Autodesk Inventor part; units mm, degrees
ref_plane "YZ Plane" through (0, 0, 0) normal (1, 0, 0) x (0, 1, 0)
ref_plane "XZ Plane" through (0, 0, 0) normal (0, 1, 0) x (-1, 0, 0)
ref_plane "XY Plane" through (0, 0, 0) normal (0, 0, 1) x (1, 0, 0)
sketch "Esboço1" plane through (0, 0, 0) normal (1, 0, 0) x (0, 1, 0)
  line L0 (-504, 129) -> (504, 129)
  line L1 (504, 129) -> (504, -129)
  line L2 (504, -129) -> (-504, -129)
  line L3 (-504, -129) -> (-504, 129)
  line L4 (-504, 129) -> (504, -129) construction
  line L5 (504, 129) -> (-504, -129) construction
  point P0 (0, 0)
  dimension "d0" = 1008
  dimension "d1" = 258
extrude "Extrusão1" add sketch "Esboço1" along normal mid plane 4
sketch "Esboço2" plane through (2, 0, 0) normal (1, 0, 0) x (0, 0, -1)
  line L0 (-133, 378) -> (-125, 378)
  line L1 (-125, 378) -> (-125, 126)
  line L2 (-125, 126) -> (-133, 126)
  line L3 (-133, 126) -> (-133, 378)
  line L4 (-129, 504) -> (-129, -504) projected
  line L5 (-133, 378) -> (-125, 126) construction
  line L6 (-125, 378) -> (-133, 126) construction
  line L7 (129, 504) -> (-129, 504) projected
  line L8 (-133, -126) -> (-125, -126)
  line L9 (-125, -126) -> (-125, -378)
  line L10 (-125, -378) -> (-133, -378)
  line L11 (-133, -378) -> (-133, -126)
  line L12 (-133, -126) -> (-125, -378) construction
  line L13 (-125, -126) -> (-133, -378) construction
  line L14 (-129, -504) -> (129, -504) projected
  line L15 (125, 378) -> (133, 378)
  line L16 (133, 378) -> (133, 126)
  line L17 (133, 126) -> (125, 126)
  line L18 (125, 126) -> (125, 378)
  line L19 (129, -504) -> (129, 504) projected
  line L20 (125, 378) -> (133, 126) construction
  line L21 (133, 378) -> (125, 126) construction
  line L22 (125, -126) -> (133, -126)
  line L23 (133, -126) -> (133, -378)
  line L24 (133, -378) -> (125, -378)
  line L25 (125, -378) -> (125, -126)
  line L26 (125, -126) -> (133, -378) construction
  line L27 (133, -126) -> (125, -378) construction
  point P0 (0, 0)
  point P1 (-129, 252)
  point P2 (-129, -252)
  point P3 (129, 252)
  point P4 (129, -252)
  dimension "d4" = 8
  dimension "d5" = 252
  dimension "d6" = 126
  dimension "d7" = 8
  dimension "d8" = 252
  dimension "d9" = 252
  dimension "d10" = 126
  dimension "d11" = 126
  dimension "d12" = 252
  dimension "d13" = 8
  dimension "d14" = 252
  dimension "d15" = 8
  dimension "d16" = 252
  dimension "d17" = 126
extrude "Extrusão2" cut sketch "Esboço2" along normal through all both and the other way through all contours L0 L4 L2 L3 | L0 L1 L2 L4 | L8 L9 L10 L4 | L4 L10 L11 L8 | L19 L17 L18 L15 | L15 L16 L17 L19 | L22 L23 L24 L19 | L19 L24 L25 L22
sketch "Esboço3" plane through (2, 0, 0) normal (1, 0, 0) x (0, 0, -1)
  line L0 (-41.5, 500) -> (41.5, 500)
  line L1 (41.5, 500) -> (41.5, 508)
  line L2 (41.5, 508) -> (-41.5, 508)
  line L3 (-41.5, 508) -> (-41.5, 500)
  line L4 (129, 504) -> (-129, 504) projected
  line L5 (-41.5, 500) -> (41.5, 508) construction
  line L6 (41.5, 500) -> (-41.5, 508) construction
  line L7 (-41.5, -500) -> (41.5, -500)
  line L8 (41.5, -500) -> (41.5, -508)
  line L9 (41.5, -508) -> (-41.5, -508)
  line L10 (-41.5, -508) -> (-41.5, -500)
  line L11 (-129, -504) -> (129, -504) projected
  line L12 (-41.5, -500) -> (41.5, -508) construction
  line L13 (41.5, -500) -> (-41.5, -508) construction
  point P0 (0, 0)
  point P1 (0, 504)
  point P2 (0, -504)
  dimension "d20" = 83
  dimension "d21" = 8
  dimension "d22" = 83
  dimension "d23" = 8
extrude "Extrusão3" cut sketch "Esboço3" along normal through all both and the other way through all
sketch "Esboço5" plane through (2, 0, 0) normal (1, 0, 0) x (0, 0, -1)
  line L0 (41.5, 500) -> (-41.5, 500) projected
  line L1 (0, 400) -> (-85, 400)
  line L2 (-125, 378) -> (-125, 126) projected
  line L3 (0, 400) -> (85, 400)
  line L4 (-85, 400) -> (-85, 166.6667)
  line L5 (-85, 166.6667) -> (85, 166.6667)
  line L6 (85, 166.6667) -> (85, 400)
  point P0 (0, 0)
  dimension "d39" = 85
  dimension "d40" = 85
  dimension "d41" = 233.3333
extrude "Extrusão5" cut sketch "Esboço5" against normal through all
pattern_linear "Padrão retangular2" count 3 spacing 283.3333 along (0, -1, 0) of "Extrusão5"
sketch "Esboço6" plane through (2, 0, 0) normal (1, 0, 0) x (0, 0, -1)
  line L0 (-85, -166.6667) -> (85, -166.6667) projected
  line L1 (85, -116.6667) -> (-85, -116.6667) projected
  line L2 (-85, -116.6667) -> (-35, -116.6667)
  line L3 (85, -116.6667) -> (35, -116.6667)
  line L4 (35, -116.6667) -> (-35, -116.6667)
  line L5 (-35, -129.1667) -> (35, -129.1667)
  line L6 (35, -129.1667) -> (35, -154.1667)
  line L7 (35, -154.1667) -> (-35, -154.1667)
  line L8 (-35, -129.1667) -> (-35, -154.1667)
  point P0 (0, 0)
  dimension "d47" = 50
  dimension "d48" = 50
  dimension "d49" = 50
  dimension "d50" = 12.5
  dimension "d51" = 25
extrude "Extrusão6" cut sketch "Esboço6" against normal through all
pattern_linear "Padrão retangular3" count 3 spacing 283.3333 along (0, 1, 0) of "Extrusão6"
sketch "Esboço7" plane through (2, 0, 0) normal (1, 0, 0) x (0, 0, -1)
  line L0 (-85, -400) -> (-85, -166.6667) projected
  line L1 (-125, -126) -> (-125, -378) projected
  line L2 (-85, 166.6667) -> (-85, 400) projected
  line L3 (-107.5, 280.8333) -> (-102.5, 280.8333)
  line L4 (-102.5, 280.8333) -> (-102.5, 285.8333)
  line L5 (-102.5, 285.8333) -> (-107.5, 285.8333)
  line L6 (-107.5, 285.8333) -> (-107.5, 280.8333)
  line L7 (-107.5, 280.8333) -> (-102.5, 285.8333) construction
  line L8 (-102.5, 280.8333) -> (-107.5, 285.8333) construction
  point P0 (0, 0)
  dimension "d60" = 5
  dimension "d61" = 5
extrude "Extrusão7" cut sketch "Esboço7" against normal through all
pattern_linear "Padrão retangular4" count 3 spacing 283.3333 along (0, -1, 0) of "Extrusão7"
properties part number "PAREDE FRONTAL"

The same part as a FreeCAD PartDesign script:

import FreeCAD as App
import Part
import Sketcher

V = App.Vector
Q = App.Units.Quantity


def add_polygon(sketch, points):
    """Adds a closed chain of lines whose ends are joined by coincident constraints."""
    first, n = sketch.GeometryCount, len(points)
    for a, b in zip(points, points[1:] + points[:1]):
        sketch.addGeometry(Part.LineSegment(App.Vector(*a, 0), App.Vector(*b, 0)), False)
    for i in range(n):
        sketch.addConstraint(Sketcher.Constraint("Coincident", first + i, 2, first + (i + 1) % n, 1))

doc = App.newDocument("Part")
body = doc.addObject("PartDesign::Body", "Body")

# Sketch on YZ plane
sketch1 = body.newObject("Sketcher::SketchObject", "Sketch")
sketch1.AttachmentSupport = (doc.getObject("YZ_Plane"), [""])
sketch1.MapMode = "FlatFace"
add_polygon(sketch1, [(504, 129), (-504, 129), (-504, -129), (504, -129)])  # lines 0-3
sketch1.addConstraint(Sketcher.Constraint("Horizontal", 0))
sketch1.addConstraint(Sketcher.Constraint("Vertical", 1))
sketch1.addConstraint(Sketcher.Constraint("Horizontal", 2))
sketch1.addConstraint(Sketcher.Constraint("Vertical", 3))
sketch1.addConstraint(Sketcher.Constraint("Symmetric", 0, 2, 2, 2, -1, 1))
sketch1.addConstraint(Sketcher.Constraint("DistanceX", 0, 2, 0, 1, Q("1008 mm")))
sketch1.addConstraint(Sketcher.Constraint("DistanceY", 1, 2, 1, 1, Q("258 mm")))
pad1 = body.newObject("PartDesign::Pad", "Pad")
pad1.Profile = sketch1
pad1.Length = 4
pad1.Midplane = True

# Sketch on YZ plane
sketch2 = body.newObject("Sketcher::SketchObject", "Sketch001")
sketch2.AttachmentSupport = (doc.getObject("YZ_Plane"), [""])
sketch2.MapMode = "FlatFace"
sketch2.AttachmentOffset = App.Placement(V(0, 0, 2), App.Rotation())
add_polygon(sketch2, [(378, 133), (126, 133), (126, 125), (378, 125)])  # lines 0-3
add_polygon(sketch2, [(-126, 125), (-126, 133), (-378, 133), (-378, 125)])  # lines 4-7
add_polygon(sketch2, [(126, -125), (126, -133), (378, -133), (378, -125)])  # lines 8-11
add_polygon(sketch2, [(-126, -133), (-126, -125), (-378, -125), (-378, -133)])  # lines 12-15
sketch2.addConstraint(Sketcher.Constraint("Horizontal", 0))
sketch2.addConstraint(Sketcher.Constraint("Vertical", 1))
sketch2.addConstraint(Sketcher.Constraint("Horizontal", 2))
sketch2.addConstraint(Sketcher.Constraint("Vertical", 3))
sketch2.addConstraint(Sketcher.Constraint("Vertical", 4))
sketch2.addConstraint(Sketcher.Constraint("Horizontal", 5))
sketch2.addConstraint(Sketcher.Constraint("Vertical", 6))
sketch2.addConstraint(Sketcher.Constraint("Horizontal", 7))
sketch2.addConstraint(Sketcher.Constraint("Vertical", 8))
sketch2.addConstraint(Sketcher.Constraint("Horizontal", 9))
sketch2.addConstraint(Sketcher.Constraint("Vertical", 10))
sketch2.addConstraint(Sketcher.Constraint("Horizontal", 11))
sketch2.addConstraint(Sketcher.Constraint("Vertical", 12))
sketch2.addConstraint(Sketcher.Constraint("Horizontal", 13))
sketch2.addConstraint(Sketcher.Constraint("Vertical", 14))
sketch2.addConstraint(Sketcher.Constraint("Horizontal", 15))
sketch2.addConstraint(Sketcher.Constraint("Symmetric", 4, 2, 8, 2, -1, 1))
sketch2.addConstraint(Sketcher.Constraint("Symmetric", 6, 2, 10, 2, -1, 1))
sketch2.addConstraint(Sketcher.Constraint("Symmetric", 1, 2, 12, 2, -1, 1))
sketch2.addConstraint(Sketcher.Constraint("Symmetric", 3, 2, 14, 2, -1, 1))
sketch2.addConstraint(Sketcher.Constraint("Symmetric", 0, 2, 4, 2, -2))
sketch2.addConstraint(Sketcher.Constraint("Symmetric", 2, 2, 6, 2, -2))
sketch2.addConstraint(Sketcher.Constraint("DistanceX", 0, 2, 0, 1, Q("252 mm")))
sketch2.addConstraint(Sketcher.Constraint("DistanceY", 1, 2, 1, 1, Q("8 mm")))
sketch2.addConstraint(Sketcher.Constraint("DistanceX", -1, 1, 0, 2, Q("126 mm")))
sketch2.addConstraint(Sketcher.Constraint("DistanceY", -1, 1, 0, 2, Q("133 mm")))
pocket1 = body.newObject("PartDesign::Pocket", "Pocket")
pocket1.Profile = sketch2
pocket1.Type = "ThroughAll"
pocket1.Midplane = True

# Sketch on YZ plane
sketch3 = body.newObject("Sketcher::SketchObject", "Sketch002")
sketch3.AttachmentSupport = (doc.getObject("YZ_Plane"), [""])
sketch3.MapMode = "FlatFace"
sketch3.AttachmentOffset = App.Placement(V(0, 0, 2), App.Rotation())
add_polygon(sketch3, [(500, 42), (500, -42), (508, -42), (508, 42)])  # lines 0-3
add_polygon(sketch3, [(-500, -42), (-500, 42), (-508, 42), (-508, -42)])  # lines 4-7
sketch3.addConstraint(Sketcher.Constraint("Vertical", 0))
sketch3.addConstraint(Sketcher.Constraint("Horizontal", 1))
sketch3.addConstraint(Sketcher.Constraint("Vertical", 2))
sketch3.addConstraint(Sketcher.Constraint("Horizontal", 3))
sketch3.addConstraint(Sketcher.Constraint("Vertical", 4))
sketch3.addConstraint(Sketcher.Constraint("Horizontal", 5))
sketch3.addConstraint(Sketcher.Constraint("Vertical", 6))
sketch3.addConstraint(Sketcher.Constraint("Horizontal", 7))
sketch3.addConstraint(Sketcher.Constraint("Symmetric", 0, 2, 4, 2, -1, 1))
sketch3.addConstraint(Sketcher.Constraint("Symmetric", 2, 2, 6, 2, -1, 1))
sketch3.addConstraint(Sketcher.Constraint("Horizontal", 3, 2, 4, 2))
sketch3.addConstraint(Sketcher.Constraint("DistanceX", 1, 1, 1, 2, Q("8 mm")))
sketch3.addConstraint(Sketcher.Constraint("DistanceY", 0, 2, 0, 1, Q("83 mm")))
sketch3.addConstraint(Sketcher.Constraint("DistanceX", -1, 1, 0, 2, Q("500 mm")))
pocket2 = body.newObject("PartDesign::Pocket", "Pocket001")
pocket2.Profile = sketch3
pocket2.Type = "ThroughAll"
pocket2.Midplane = True

# Sketch on YZ plane
sketch4 = body.newObject("Sketcher::SketchObject", "Sketch003")
sketch4.AttachmentSupport = (doc.getObject("YZ_Plane"), [""])
sketch4.MapMode = "FlatFace"
sketch4.AttachmentOffset = App.Placement(V(0, 0, 2), App.Rotation())
add_polygon(sketch4, [(400, -85), (400, 85), (167, 85), (167, -85)])  # lines 0-3
sketch4.addConstraint(Sketcher.Constraint("Vertical", 0))
sketch4.addConstraint(Sketcher.Constraint("Horizontal", 1))
sketch4.addConstraint(Sketcher.Constraint("Vertical", 2))
sketch4.addConstraint(Sketcher.Constraint("Horizontal", 3))
sketch4.addConstraint(Sketcher.Constraint("DistanceY", -1, 1, 0, 2, Q("85 mm")))
sketch4.addConstraint(Sketcher.Constraint("DistanceY", 2, 2, -1, 1, Q("85 mm")))
sketch4.addConstraint(Sketcher.Constraint("DistanceX", 1, 2, 1, 1, Q("233.3333 mm")))
sketch4.addConstraint(Sketcher.Constraint("DistanceX", -1, 1, 0, 2, Q("400 mm")))
pocket3 = body.newObject("PartDesign::Pocket", "Pocket002")
pocket3.Profile = sketch4
pocket3.Type = "ThroughAll"
doc.recompute()

linearpattern = body.newObject("PartDesign::LinearPattern", "LinearPattern")
linearpattern.Originals = [pocket3]
linearpattern.Direction = (doc.getObject("Y_Axis"), [""])
linearpattern.Mode = "offset"
linearpattern.Offset = 283.3333
linearpattern.Occurrences = 3
linearpattern.Reversed = True
body.Tip = linearpattern

# Sketch on YZ plane
sketch5 = body.newObject("Sketcher::SketchObject", "Sketch004")
sketch5.AttachmentSupport = (doc.getObject("YZ_Plane"), [""])
sketch5.MapMode = "FlatFace"
sketch5.AttachmentOffset = App.Placement(V(0, 0, 2), App.Rotation())
add_polygon(sketch5, [(-129, -35), (-129, 35), (-154, 35), (-154, -35)])  # lines 0-3
sketch5.addConstraint(Sketcher.Constraint("Vertical", 0))
sketch5.addConstraint(Sketcher.Constraint("Horizontal", 1))
sketch5.addConstraint(Sketcher.Constraint("Vertical", 2))
sketch5.addConstraint(Sketcher.Constraint("Horizontal", 3))
sketch5.addConstraint(Sketcher.Constraint("DistanceX", 1, 2, 1, 1, Q("25 mm")))
sketch5.addConstraint(Sketcher.Constraint("DistanceY", 0, 1, 0, 2, Q("70 mm")))
sketch5.addConstraint(Sketcher.Constraint("DistanceY", -1, 1, 0, 2, Q("35 mm")))
sketch5.addConstraint(Sketcher.Constraint("DistanceX", 0, 2, -1, 1, Q("129.1667 mm")))
pocket4 = body.newObject("PartDesign::Pocket", "Pocket003")
pocket4.Profile = sketch5
pocket4.Type = "ThroughAll"
doc.recompute()

linearpattern2 = body.newObject("PartDesign::LinearPattern", "LinearPattern001")
linearpattern2.Originals = [pocket4]
linearpattern2.Direction = (doc.getObject("Y_Axis"), [""])
linearpattern2.Mode = "offset"
linearpattern2.Offset = 283.3333
linearpattern2.Occurrences = 3
body.Tip = linearpattern2

# Sketch on YZ plane
sketch6 = body.newObject("Sketcher::SketchObject", "Sketch005")
sketch6.AttachmentSupport = (doc.getObject("YZ_Plane"), [""])
sketch6.MapMode = "FlatFace"
sketch6.AttachmentOffset = App.Placement(V(0, 0, 2), App.Rotation())
add_polygon(sketch6, [(286, 108), (281, 108), (281, 102), (286, 102)])  # lines 0-3
sketch6.addConstraint(Sketcher.Constraint("Horizontal", 0))
sketch6.addConstraint(Sketcher.Constraint("Vertical", 1))
sketch6.addConstraint(Sketcher.Constraint("Horizontal", 2))
sketch6.addConstraint(Sketcher.Constraint("Vertical", 3))
sketch6.addConstraint(Sketcher.Constraint("Equal", 2, 1))
sketch6.addConstraint(Sketcher.Constraint("DistanceX", 0, 2, 0, 1, Q("5 mm")))
sketch6.addConstraint(Sketcher.Constraint("DistanceY", -1, 1, 0, 2, Q("107.5 mm")))
sketch6.addConstraint(Sketcher.Constraint("DistanceX", -1, 1, 0, 2, Q("280.8333 mm")))
pocket5 = body.newObject("PartDesign::Pocket", "Pocket004")
pocket5.Profile = sketch6
pocket5.Type = "ThroughAll"
doc.recompute()

linearpattern3 = body.newObject("PartDesign::LinearPattern", "LinearPattern002")
linearpattern3.Originals = [pocket5]
linearpattern3.Direction = (doc.getObject("Y_Axis"), [""])
linearpattern3.Mode = "offset"
linearpattern3.Offset = 283.3333
linearpattern3.Occurrences = 3
linearpattern3.Reversed = True
body.Tip = linearpattern3

doc.recompute()
